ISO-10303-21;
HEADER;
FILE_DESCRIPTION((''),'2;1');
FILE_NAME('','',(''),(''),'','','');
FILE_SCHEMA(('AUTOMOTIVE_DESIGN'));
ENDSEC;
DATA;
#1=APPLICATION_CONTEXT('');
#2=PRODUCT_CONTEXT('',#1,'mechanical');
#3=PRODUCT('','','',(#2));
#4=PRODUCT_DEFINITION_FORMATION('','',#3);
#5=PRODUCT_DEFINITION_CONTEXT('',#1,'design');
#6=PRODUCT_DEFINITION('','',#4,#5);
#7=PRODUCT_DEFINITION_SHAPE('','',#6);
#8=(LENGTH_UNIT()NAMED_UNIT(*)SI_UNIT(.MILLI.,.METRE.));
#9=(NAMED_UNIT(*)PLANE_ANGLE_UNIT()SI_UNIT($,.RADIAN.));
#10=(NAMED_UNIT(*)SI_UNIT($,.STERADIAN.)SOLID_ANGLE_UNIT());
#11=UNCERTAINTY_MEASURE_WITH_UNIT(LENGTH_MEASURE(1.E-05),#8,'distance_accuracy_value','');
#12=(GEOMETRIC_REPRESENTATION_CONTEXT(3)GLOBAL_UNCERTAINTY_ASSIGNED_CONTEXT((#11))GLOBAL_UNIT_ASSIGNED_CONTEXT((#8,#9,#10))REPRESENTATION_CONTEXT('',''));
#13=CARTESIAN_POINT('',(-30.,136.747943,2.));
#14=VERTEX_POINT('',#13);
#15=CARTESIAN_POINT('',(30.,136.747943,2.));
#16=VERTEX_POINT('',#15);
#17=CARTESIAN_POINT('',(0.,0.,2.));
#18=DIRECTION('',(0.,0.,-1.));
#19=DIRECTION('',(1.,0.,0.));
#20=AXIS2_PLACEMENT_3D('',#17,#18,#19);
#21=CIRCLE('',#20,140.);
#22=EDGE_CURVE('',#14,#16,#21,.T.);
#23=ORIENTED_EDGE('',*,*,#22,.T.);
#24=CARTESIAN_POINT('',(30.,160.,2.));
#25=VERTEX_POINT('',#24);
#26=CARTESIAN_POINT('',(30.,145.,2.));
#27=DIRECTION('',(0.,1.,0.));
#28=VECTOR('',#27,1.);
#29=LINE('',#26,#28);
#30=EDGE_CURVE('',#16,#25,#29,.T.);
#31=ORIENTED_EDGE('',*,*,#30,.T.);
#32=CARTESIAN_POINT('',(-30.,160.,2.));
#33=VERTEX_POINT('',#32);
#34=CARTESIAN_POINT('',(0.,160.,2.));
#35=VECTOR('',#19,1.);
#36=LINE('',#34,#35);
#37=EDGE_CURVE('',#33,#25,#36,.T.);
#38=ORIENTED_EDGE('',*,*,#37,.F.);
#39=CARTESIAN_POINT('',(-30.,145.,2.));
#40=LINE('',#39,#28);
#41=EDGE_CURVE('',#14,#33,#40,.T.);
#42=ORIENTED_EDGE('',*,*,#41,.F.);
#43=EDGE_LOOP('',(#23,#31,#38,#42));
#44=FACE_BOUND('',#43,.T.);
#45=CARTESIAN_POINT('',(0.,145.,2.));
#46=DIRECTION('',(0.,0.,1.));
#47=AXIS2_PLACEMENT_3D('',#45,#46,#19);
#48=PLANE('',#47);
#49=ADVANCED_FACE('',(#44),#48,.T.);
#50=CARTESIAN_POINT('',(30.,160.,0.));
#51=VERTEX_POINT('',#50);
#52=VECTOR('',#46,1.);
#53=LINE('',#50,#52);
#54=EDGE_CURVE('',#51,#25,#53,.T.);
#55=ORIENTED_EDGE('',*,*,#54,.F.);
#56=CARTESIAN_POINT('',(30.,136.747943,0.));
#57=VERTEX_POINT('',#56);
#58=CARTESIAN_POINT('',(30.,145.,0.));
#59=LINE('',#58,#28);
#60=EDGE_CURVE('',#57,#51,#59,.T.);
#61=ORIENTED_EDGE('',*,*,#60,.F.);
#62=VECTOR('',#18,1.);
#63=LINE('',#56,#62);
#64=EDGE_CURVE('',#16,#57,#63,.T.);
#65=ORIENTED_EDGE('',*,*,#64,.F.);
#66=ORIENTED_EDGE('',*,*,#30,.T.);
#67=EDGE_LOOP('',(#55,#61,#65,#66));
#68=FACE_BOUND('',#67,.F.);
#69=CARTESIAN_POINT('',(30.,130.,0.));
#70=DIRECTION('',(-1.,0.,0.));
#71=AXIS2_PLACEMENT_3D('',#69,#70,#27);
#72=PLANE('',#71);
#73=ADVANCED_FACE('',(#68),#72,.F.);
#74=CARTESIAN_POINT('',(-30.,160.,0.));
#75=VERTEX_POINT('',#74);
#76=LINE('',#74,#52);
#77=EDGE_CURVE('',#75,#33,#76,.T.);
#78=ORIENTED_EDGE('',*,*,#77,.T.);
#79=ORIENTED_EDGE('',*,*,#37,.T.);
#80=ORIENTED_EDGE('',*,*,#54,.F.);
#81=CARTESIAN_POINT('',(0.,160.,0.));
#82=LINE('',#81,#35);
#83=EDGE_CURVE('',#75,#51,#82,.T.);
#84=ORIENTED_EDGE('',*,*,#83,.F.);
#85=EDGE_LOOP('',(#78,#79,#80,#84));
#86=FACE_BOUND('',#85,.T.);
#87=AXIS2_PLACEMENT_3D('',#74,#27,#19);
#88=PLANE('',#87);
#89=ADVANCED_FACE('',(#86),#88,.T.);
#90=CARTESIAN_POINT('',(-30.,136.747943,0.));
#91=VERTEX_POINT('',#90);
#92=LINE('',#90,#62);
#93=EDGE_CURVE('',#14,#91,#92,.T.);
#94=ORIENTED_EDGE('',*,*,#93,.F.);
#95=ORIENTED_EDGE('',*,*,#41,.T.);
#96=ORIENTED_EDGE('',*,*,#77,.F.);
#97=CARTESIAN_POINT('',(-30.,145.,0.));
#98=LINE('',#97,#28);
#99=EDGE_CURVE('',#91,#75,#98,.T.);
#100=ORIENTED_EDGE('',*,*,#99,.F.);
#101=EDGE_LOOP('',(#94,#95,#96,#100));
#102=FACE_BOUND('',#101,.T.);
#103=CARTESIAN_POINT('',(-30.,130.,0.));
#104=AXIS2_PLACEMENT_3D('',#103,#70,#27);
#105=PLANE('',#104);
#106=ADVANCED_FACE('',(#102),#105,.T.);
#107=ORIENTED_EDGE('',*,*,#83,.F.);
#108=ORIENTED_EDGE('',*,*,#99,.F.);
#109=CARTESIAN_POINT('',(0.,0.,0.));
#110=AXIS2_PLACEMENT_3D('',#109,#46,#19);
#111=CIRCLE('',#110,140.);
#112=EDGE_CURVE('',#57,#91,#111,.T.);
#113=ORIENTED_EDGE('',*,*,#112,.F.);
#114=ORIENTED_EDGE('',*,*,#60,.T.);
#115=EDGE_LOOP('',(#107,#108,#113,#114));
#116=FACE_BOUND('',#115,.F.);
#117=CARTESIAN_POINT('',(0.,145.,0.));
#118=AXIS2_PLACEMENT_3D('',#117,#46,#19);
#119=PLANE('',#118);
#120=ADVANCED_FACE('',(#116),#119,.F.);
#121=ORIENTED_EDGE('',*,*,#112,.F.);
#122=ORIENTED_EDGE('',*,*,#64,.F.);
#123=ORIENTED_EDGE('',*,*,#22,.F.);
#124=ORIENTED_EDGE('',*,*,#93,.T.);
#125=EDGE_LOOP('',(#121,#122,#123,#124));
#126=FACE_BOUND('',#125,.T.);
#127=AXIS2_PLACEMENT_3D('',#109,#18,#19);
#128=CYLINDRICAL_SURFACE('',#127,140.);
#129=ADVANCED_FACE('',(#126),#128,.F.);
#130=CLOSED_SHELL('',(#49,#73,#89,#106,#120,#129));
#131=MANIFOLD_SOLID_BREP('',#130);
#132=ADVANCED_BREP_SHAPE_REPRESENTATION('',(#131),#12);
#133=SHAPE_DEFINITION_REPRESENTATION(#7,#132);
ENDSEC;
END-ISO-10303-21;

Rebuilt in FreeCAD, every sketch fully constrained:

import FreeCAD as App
import Part
import Sketcher
from FreeCAD import Vector
Q = App.Units.Quantity

doc = App.newDocument("Part")
body = doc.addObject("PartDesign::Body", "Body")

# Sketch on XY plane
sketch1 = body.newObject("Sketcher::SketchObject", "Sketch")
sketch1.AttachmentSupport = (doc.getObject("XY_Plane"), [""])
sketch1.MapMode = "FlatFace"
sketch1.addGeometry(Part.Circle(Vector(0, 0, 0), Vector(0, 0, 1), 140), False)
sketch1.addConstraint([
    Sketcher.Constraint("Coincident", 0, 3, -1, 1),
    Sketcher.Constraint("Diameter", 0, Q("280 mm")),
])
pad1 = body.newObject("PartDesign::Pad", "Pad")
pad1.Profile = sketch1
pad1.Length = 10
body2 = doc.addObject("PartDesign::Body", "Body001")

# Sketch on XY plane
sketch2 = body2.newObject("Sketcher::SketchObject", "Sketch001")
sketch2.AttachmentSupport = (doc.getObject("XY_Plane001"), [""])
sketch2.MapMode = "FlatFace"
sketch2.addGeometry([
    Part.LineSegment(Vector(-30, 160, 0), Vector(-30, 130, 0)),
    Part.LineSegment(Vector(-30, 130, 0), Vector(30, 130, 0)),
    Part.LineSegment(Vector(30, 130, 0), Vector(30, 160, 0)),
    Part.LineSegment(Vector(30, 160, 0), Vector(-30, 160, 0)),
], False)
sketch2.addConstraint([
    Sketcher.Constraint("Coincident", 0, 2, 1, 1),
    Sketcher.Constraint("Coincident", 1, 2, 2, 1),
    Sketcher.Constraint("Coincident", 2, 2, 3, 1),
    Sketcher.Constraint("Coincident", 3, 2, 0, 1),
    Sketcher.Constraint("Vertical", 0),
    Sketcher.Constraint("Horizontal", 1),
    Sketcher.Constraint("Vertical", 2),
    Sketcher.Constraint("Horizontal", 3),
    Sketcher.Constraint("DistanceX", 1, 1, 1, 2, Q("60 mm")),
    Sketcher.Constraint("DistanceY", 0, 2, 0, 1, Q("30 mm")),
    Sketcher.Constraint("DistanceX", 0, 2, -1, 1, Q("30 mm")),
    Sketcher.Constraint("DistanceY", -1, 1, 0, 2, Q("130 mm")),
])
pad2 = body2.newObject("PartDesign::Pad", "Pad001")
pad2.Profile = sketch2
pad2.Length = 2
doc.recompute()

boolean = body2.newObject("PartDesign::Boolean", "Boolean")
boolean.Type = "Cut"
boolean.addObjects([body])

doc.recompute()
